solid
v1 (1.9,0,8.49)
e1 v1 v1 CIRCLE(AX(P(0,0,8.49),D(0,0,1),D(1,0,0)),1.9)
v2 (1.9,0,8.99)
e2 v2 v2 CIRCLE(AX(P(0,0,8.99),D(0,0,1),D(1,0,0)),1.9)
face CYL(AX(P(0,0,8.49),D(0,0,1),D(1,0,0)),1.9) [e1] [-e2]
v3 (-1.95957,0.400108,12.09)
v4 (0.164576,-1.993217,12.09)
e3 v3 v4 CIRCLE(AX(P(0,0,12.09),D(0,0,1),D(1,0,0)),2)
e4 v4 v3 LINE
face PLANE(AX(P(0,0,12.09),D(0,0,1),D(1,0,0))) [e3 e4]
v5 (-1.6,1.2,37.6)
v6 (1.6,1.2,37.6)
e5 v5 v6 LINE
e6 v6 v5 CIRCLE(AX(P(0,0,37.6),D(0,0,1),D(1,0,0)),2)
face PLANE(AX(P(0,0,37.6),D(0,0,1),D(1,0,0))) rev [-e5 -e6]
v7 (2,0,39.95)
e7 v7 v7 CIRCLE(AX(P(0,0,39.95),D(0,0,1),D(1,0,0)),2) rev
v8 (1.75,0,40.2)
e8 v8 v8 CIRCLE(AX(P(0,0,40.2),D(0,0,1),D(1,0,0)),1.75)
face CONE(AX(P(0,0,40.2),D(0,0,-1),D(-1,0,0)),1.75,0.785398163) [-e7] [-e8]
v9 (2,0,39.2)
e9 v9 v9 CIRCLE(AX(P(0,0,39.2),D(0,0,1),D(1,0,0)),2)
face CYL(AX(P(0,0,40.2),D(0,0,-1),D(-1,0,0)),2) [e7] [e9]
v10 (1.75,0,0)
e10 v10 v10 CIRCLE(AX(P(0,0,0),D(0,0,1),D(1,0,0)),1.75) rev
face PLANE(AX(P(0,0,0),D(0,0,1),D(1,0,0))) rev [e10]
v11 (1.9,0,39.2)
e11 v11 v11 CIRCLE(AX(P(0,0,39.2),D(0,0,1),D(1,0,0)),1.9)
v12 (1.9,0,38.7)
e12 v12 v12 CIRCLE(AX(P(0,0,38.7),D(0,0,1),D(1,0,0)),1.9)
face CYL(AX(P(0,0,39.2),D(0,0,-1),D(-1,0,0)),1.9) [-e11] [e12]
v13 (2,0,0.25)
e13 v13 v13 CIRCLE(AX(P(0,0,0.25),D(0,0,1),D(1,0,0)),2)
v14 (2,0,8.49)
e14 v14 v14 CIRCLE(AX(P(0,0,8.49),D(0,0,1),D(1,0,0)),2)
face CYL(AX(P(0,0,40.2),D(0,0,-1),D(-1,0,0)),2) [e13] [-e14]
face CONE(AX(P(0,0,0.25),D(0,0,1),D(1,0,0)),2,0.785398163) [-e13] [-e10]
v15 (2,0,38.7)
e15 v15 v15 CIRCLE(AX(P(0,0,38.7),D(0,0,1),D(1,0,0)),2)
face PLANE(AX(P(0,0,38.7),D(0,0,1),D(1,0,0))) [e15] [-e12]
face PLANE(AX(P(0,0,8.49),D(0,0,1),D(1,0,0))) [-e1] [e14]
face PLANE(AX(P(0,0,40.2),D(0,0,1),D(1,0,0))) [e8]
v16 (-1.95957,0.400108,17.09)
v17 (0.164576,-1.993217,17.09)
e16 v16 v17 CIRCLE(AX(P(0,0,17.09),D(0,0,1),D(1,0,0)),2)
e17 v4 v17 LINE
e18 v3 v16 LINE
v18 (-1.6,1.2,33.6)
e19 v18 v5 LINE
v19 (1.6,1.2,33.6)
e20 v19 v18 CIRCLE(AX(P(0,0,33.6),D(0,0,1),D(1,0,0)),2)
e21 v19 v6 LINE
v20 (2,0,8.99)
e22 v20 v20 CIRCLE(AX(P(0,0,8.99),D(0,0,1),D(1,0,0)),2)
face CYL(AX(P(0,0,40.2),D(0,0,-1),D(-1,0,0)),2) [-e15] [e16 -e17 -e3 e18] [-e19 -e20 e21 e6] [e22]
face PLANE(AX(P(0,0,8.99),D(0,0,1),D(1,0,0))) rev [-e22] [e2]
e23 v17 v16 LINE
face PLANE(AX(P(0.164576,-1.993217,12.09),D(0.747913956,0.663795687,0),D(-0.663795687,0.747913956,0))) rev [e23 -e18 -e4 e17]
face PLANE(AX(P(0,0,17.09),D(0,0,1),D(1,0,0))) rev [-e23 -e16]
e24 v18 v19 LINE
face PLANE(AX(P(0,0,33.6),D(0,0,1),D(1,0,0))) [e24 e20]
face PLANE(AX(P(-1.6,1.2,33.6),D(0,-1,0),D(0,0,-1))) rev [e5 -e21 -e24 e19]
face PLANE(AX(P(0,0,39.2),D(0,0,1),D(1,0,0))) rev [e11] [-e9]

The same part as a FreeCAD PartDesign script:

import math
import FreeCAD as App
import Part
import Sketcher

V = App.Vector
Q = App.Units.Quantity


def edges_at(feature, points):
    """Names of the edges that pass closest to the given points."""
    edges = feature.Shape.Edges
    near = lambda p: min(range(len(edges)), key=lambda i: edges[i].distToShape(Part.Vertex(*p))[0])
    return sorted({f"Edge{near(p) + 1}" for p in points})

doc = App.newDocument("Part")
body = doc.addObject("PartDesign::Body", "Body")

# Sketch on XY plane
sketch1 = body.newObject("Sketcher::SketchObject", "Sketch")
sketch1.AttachmentSupport = (doc.getObject("XY_Plane"), [""])
sketch1.MapMode = "FlatFace"
sketch1.addGeometry(Part.Circle(V(0, 0, 0), V(0, 0, 1), 2), False)
sketch1.addConstraint(Sketcher.Constraint("Coincident", 0, 3, -1, 1))
sketch1.addConstraint(Sketcher.Constraint("Diameter", 0, 4.0))
pad1 = body.newObject("PartDesign::Pad", "Pad")
pad1.Profile = sketch1
pad1.Length = 40.2

# Sketch on XY plane
sketch2 = body.newObject("Sketcher::SketchObject", "Sketch001")
sketch2.AttachmentSupport = (doc.getObject("XY_Plane"), [""])
sketch2.MapMode = "FlatFace"
sketch2.AttachmentOffset = App.Placement(V(0, 0, 37.6), App.Rotation())
sketch2.addGeometry(Part.LineSegment(V(-1.6, 1.2, 0), V(1.6, 1.2, 0)), False)
sketch2.addGeometry(Part.ArcOfCircle(Part.Circle(V(0, 0, 0), V(0, 0, 1), 2), math.radians(36.869898), math.radians(143.130102)), False)
sketch2.addConstraint(Sketcher.Constraint("Coincident", 0, 1, 1, 2))
sketch2.addConstraint(Sketcher.Constraint("Coincident", 1, 1, 0, 2))
sketch2.addConstraint(Sketcher.Constraint("Horizontal", 0))
sketch2.addConstraint(Sketcher.Constraint("Coincident", 1, 3, -1, 1))
sketch2.addConstraint(Sketcher.Constraint("Radius", 1, 2.0))
sketch2.addConstraint(Sketcher.Constraint("DistanceX", 0, 1, 0, 2, 3.2))
pocket1 = body.newObject("PartDesign::Pocket", "Pocket")
pocket1.Profile = sketch2
pocket1.Length = 4

# Sketch on XY plane
sketch3 = body.newObject("Sketcher::SketchObject", "Sketch002")
sketch3.AttachmentSupport = (doc.getObject("XY_Plane"), [""])
sketch3.MapMode = "FlatFace"
sketch3.AttachmentOffset = App.Placement(V(0, 0, 17.09), App.Rotation())
sketch3.addGeometry(Part.LineSegment(V(0.164576, -1.993217, 0), V(-1.95957, 0.400108, 0)), False)
sketch3.addGeometry(Part.ArcOfCircle(Part.Circle(V(0, 0, 0), V(0, 0, 1), 2), math.radians(168.459898), math.radians(274.720102)), False)
sketch3.addConstraint(Sketcher.Constraint("Coincident", 0, 1, 1, 2))
sketch3.addConstraint(Sketcher.Constraint("Coincident", 1, 1, 0, 2))
sketch3.addConstraint(Sketcher.Constraint("Coincident", 1, 3, -1, 1))
sketch3.addConstraint(Sketcher.Constraint("Radius", 1, 2.0))
sketch3.addConstraint(Sketcher.Constraint("Distance", 0, 3.2))
sketch3.addConstraint(Sketcher.Constraint("Angle", 0, Q("131.59 deg")))
pocket2 = body.newObject("PartDesign::Pocket", "Pocket001")
pocket2.Profile = sketch3
pocket2.Length = 5

# Sketch on XY plane
sketch4 = body.newObject("Sketcher::SketchObject", "Sketch003")
sketch4.AttachmentSupport = (doc.getObject("XY_Plane"), [""])
sketch4.MapMode = "FlatFace"
sketch4.AttachmentOffset = App.Placement(V(0, 0, 38.7), App.Rotation())
sketch4.addGeometry(Part.LineSegment(V(-7.06, 7.06, 0), V(-7.06, -7.06, 0)), False)
sketch4.addGeometry(Part.LineSegment(V(-7.06, -7.06, 0), V(7.06, -7.06, 0)), False)
sketch4.addGeometry(Part.LineSegment(V(7.06, -7.06, 0), V(7.06, 7.06, 0)), False)
sketch4.addGeometry(Part.LineSegment(V(7.06, 7.06, 0), V(-7.06, 7.06, 0)), False)
sketch4.addGeometry(Part.Circle(V(0, 0, 0), V(0, 0, 1), 1.9), False)
sketch4.addConstraint(Sketcher.Constraint("Coincident", 0, 2, 1, 1))
sketch4.addConstraint(Sketcher.Constraint("Coincident", 1, 2, 2, 1))
sketch4.addConstraint(Sketcher.Constraint("Coincident", 2, 2, 3, 1))
sketch4.addConstraint(Sketcher.Constraint("Coincident", 3, 2, 0, 1))
sketch4.addConstraint(Sketcher.Constraint("Vertical", 0))
sketch4.addConstraint(Sketcher.Constraint("Horizontal", 1))
sketch4.addConstraint(Sketcher.Constraint("Vertical", 2))
sketch4.addConstraint(Sketcher.Constraint("Horizontal", 3))
sketch4.addConstraint(Sketcher.Constraint("Coincident", 4, 3, -1, 1))
sketch4.addConstraint(Sketcher.Constraint("Symmetric", 0, 2, 2, 2, -1, 1))
sketch4.addConstraint(Sketcher.Constraint("Equal", 3, 0))
sketch4.addConstraint(Sketcher.Constraint("Diameter", 4, 3.8))
sketch4.addConstraint(Sketcher.Constraint("DistanceX", 1, 1, 1, 2, 14.12))
pocket3 = body.newObject("PartDesign::Pocket", "Pocket002")
pocket3.Profile = sketch4
pocket3.Length = 0.5
pocket3.Reversed = True

# Sketch on XY plane
sketch5 = body.newObject("Sketcher::SketchObject", "Sketch004")
sketch5.AttachmentSupport = (doc.getObject("XY_Plane"), [""])
sketch5.MapMode = "FlatFace"
sketch5.AttachmentOffset = App.Placement(V(0, 0, 8.99), App.Rotation())
sketch5.addGeometry(Part.LineSegment(V(-7.06, 7.06, 0), V(-7.06, -7.06, 0)), False)
sketch5.addGeometry(Part.LineSegment(V(-7.06, -7.06, 0), V(7.06, -7.06, 0)), False)
sketch5.addGeometry(Part.LineSegment(V(7.06, -7.06, 0), V(7.06, 7.06, 0)), False)
sketch5.addGeometry(Part.LineSegment(V(7.06, 7.06, 0), V(-7.06, 7.06, 0)), False)
sketch5.addGeometry(Part.Circle(V(0, 0, 0), V(0, 0, 1), 1.9), False)
sketch5.addConstraint(Sketcher.Constraint("Coincident", 0, 2, 1, 1))
sketch5.addConstraint(Sketcher.Constraint("Coincident", 1, 2, 2, 1))
sketch5.addConstraint(Sketcher.Constraint("Coincident", 2, 2, 3, 1))
sketch5.addConstraint(Sketcher.Constraint("Coincident", 3, 2, 0, 1))
sketch5.addConstraint(Sketcher.Constraint("Vertical", 0))
sketch5.addConstraint(Sketcher.Constraint("Horizontal", 1))
sketch5.addConstraint(Sketcher.Constraint("Vertical", 2))
sketch5.addConstraint(Sketcher.Constraint("Horizontal", 3))
sketch5.addConstraint(Sketcher.Constraint("Coincident", 4, 3, -1, 1))
sketch5.addConstraint(Sketcher.Constraint("Symmetric", 0, 2, 2, 2, -1, 1))
sketch5.addConstraint(Sketcher.Constraint("Equal", 3, 0))
sketch5.addConstraint(Sketcher.Constraint("Diameter", 4, 3.8))
sketch5.addConstraint(Sketcher.Constraint("DistanceX", 1, 1, 1, 2, 14.12))
pocket4 = body.newObject("PartDesign::Pocket", "Pocket003")
pocket4.Profile = sketch5
pocket4.Length = 0.5
doc.recompute()

chamfer = body.newObject("PartDesign::Chamfer", "Chamfer")
chamfer.Base = (pocket4, edges_at(pocket4, [(-2, 0, 40.2)]))
chamfer.Size = 0.25
doc.recompute()

chamfer2 = body.newObject("PartDesign::Chamfer", "Chamfer001")
chamfer2.Base = (chamfer, edges_at(chamfer, [(-2, 0, 0)]))
chamfer2.Size = 0.25

doc.recompute()
